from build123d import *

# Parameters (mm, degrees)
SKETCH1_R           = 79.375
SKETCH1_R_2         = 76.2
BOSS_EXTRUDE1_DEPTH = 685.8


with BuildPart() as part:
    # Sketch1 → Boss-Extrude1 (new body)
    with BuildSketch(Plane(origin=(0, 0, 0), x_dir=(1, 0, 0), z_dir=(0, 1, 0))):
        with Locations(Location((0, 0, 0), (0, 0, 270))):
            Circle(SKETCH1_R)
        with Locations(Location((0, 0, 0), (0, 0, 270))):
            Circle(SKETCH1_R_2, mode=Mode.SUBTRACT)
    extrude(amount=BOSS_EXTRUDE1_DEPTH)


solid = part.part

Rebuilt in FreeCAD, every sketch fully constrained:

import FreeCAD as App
import Part
import Sketcher
Q = App.Units.Quantity

doc = App.newDocument("Part")
body = doc.addObject("PartDesign::Body", "Body")

sketch1 = body.newObject("Sketcher::SketchObject", "Sketch")
sketch1.AttachmentSupport = (doc.getObject("XZ_Plane"), [""])
sketch1.MapMode = "FlatFace"
sketch1.addGeometry([
    Part.Circle(App.Vector(0, 0, 0), App.Vector(0, 0, 1), 79),
    Part.Circle(App.Vector(0, 0, 0), App.Vector(0, 0, 1), 76),
], False)
sketch1.addConstraint([
    Sketcher.Constraint("Coincident", 0, 3, -1, 1),
    Sketcher.Constraint("Coincident", 1, 3, -1, 1),
    Sketcher.Constraint("Diameter", 1, Q("6 in")),
    Sketcher.Constraint("Diameter", 0, Q("6.25 in")),
])
pad1 = body.newObject("PartDesign::Pad", "Pad")
pad1.Profile = sketch1
pad1.Length = Q("27 in")
pad1.Reversed = True

doc.recompute()
